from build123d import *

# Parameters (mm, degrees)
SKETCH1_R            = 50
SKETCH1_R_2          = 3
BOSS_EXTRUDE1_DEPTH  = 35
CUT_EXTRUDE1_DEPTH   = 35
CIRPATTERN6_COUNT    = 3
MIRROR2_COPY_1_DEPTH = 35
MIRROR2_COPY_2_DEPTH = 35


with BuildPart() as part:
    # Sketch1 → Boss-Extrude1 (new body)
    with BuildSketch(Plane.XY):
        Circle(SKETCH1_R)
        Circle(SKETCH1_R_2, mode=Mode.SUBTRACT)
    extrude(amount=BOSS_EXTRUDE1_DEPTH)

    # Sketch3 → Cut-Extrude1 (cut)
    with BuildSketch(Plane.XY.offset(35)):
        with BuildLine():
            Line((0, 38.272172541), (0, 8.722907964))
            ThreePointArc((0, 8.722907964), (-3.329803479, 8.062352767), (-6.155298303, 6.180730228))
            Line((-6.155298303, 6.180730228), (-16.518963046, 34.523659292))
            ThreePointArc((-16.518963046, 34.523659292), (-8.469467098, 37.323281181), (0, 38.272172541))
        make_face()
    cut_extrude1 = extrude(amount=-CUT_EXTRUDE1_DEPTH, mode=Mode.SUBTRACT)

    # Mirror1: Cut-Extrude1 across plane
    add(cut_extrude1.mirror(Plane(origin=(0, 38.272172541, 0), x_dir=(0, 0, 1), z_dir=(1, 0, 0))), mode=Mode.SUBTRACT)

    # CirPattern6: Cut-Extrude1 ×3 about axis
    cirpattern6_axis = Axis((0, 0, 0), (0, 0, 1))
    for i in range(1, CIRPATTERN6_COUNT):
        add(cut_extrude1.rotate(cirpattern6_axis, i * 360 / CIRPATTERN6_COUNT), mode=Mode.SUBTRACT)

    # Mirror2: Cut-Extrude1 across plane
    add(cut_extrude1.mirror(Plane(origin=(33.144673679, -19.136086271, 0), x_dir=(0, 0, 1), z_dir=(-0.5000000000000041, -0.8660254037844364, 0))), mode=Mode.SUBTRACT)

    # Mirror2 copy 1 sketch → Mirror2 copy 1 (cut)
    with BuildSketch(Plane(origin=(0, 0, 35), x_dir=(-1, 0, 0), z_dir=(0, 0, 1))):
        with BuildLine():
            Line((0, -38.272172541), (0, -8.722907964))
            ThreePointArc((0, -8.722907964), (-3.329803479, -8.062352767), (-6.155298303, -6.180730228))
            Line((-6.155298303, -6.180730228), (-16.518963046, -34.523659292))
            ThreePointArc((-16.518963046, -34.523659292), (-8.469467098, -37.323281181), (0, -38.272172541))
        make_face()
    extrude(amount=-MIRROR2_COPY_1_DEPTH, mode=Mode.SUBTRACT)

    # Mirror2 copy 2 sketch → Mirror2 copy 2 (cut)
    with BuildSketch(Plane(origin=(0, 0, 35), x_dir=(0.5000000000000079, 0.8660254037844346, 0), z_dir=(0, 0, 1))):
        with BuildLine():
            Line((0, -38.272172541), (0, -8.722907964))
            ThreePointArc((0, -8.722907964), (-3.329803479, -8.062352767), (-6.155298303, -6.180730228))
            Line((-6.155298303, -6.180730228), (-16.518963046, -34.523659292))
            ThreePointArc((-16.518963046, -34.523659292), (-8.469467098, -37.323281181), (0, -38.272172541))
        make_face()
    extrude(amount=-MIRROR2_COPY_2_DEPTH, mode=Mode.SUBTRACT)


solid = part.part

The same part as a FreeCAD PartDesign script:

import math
import FreeCAD as App
import Part
import Sketcher
from FreeCAD import Vector
Q = App.Units.Quantity

doc = App.newDocument("Part")
params = doc.addObject("Spreadsheet::Sheet", "Params")
for row, (alias, value) in enumerate([
    ("sketch1_diameter", "100 mm"),
    ("sketch1_diameter2", "6 mm"),
    ("pad1_length", "35 mm"),
    ("pocket1_length", "35 mm"),
    ("pocket2_length", "35 mm"),
    ("pocket3_length", "35 mm"),
], start=1):
    params.set(f"A{row}", alias)
    params.set(f"B{row}", "=" + value)
    params.setAlias(f"B{row}", alias)

body = doc.addObject("PartDesign::Body", "Body")

sketch1 = body.newObject("Sketcher::SketchObject", "Sketch")
sketch1.AttachmentSupport = (doc.getObject("XY_Plane"), [""])
sketch1.MapMode = "FlatFace"
sketch1.addGeometry(Part.Circle(Vector(0, 0, 0), Vector(0, 0, 1), 50), False)
sketch1.addGeometry(Part.Circle(Vector(0, 0, 0), Vector(0, 0, 1), 3), False)
sketch1.addConstraint(Sketcher.Constraint("Coincident", 0, 3, -1, 1))
sketch1.addConstraint(Sketcher.Constraint("Coincident", 1, 3, -1, 1))
sketch1.addConstraint(Sketcher.Constraint("Diameter", 0, Q("100 mm")))
sketch1.addConstraint(Sketcher.Constraint("Diameter", 1, Q("6 mm")))
sketch1.setExpression("Constraints[2]", "Params.sketch1_diameter")
sketch1.setExpression("Constraints[3]", "Params.sketch1_diameter2")
pad1 = body.newObject("PartDesign::Pad", "Pad")
pad1.Profile = sketch1
pad1.setExpression("Length", "Params.pad1_length")

sketch2 = body.newObject("Sketcher::SketchObject", "Sketch001")
sketch2.AttachmentSupport = (doc.getObject("XY_Plane"), [""])
sketch2.MapMode = "FlatFace"
sketch2.AttachmentOffset = App.Placement(Vector(0, 0, 35), App.Rotation())
sketch2.addGeometry(Part.LineSegment(Vector(0, 9, 0), Vector(0, 38, 0)), False)
sketch2.addGeometry(Part.ArcOfCircle(Part.Circle(Vector(0, 0, 0), Vector(0, 0, 1), 38), math.radians(90), math.radians(116)), False)
sketch2.addGeometry(Part.LineSegment(Vector(-17, 35, 0), Vector(-6, 6, 0)), False)
sketch2.addGeometry(Part.ArcOfCircle(Part.Circle(Vector(0, 0, 0), Vector(0, 0, 1), 9), math.radians(90), math.radians(135)), False)
sketch2.addConstraint(Sketcher.Constraint("Coincident", 0, 2, 1, 1))
sketch2.addConstraint(Sketcher.Constraint("Coincident", 1, 2, 2, 1))
sketch2.addConstraint(Sketcher.Constraint("Coincident", 2, 2, 3, 2))
sketch2.addConstraint(Sketcher.Constraint("Coincident", 3, 1, 0, 1))
sketch2.addConstraint(Sketcher.Constraint("Vertical", 0))
sketch2.addConstraint(Sketcher.Constraint("Coincident", 1, 3, -1, 1))
sketch2.addConstraint(Sketcher.Constraint("Coincident", 3, 3, -1, 1))
sketch2.addConstraint(Sketcher.Constraint("PointOnObject", 0, 2, -2))
sketch2.addConstraint(Sketcher.Constraint("Radius", 1, Q("38.272173 mm")))
sketch2.addConstraint(Sketcher.Constraint("Radius", 3, Q("8.722908 mm")))
sketch2.addConstraint(Sketcher.Constraint("DistanceX", 2, 2, -1, 1, Q("6.155298 mm")))
sketch2.addConstraint(Sketcher.Constraint("DistanceY", -1, 1, 1, 2, Q("34.523659 mm")))
pocket1 = body.newObject("PartDesign::Pocket", "Pocket")
pocket1.Profile = sketch2
pocket1.setExpression("Length", "Params.pocket1_length")
doc.recompute()

mirrored = body.newObject("PartDesign::Mirrored", "Mirrored")
mirrored.Originals = [pocket1]
mirrored.MirrorPlane = (doc.getObject("YZ_Plane"), [""])
body.Tip = mirrored
doc.recompute()

polarpattern = body.newObject("PartDesign::PolarPattern", "PolarPattern")
polarpattern.Originals = [pocket1]
polarpattern.Axis = (doc.getObject("Z_Axis"), [""])
polarpattern.Angle = 360
polarpattern.Occurrences = 3
body.Tip = polarpattern
doc.recompute()

datumplane = body.newObject("PartDesign::Plane", "DatumPlane")
datumplane.Placement = App.Placement(Vector(0, 0, 0), App.Rotation(Vector(-0.866025404, 0.5, 0), Vector(0, 0, -1), Vector(-0.5, -0.866025404, 0), "ZXY"))
mirrored2 = body.newObject("PartDesign::Mirrored", "Mirrored001")
mirrored2.Originals = [pocket1]
mirrored2.MirrorPlane = (datumplane, [""])
body.Tip = mirrored2

sketch3 = body.newObject("Sketcher::SketchObject", "Sketch002")
sketch3.AttachmentSupport = (doc.getObject("XY_Plane"), [""])
sketch3.MapMode = "FlatFace"
sketch3.AttachmentOffset = App.Placement(Vector(0, 0, 35), App.Rotation())
sketch3.addGeometry(Part.LineSegment(Vector(0, 38, 0), Vector(0, 9, 0)), False)
sketch3.addGeometry(Part.ArcOfCircle(Part.Circle(Vector(0, 0, 0), Vector(0, 0, 1), 9), math.radians(45), math.radians(90)), False)
sketch3.addGeometry(Part.LineSegment(Vector(6, 6, 0), Vector(17, 35, 0)), False)
sketch3.addGeometry(Part.ArcOfCircle(Part.Circle(Vector(0, 0, 0), Vector(0, 0, 1), 38), math.radians(64), math.radians(90)), False)
sketch3.addConstraint(Sketcher.Constraint("Coincident", 0, 2, 1, 2))
sketch3.addConstraint(Sketcher.Constraint("Coincident", 1, 1, 2, 1))
sketch3.addConstraint(Sketcher.Constraint("Coincident", 2, 2, 3, 1))
sketch3.addConstraint(Sketcher.Constraint("Coincident", 3, 2, 0, 1))
sketch3.addConstraint(Sketcher.Constraint("Vertical", 0))
sketch3.addConstraint(Sketcher.Constraint("Coincident", 1, 3, -1, 1))
sketch3.addConstraint(Sketcher.Constraint("Coincident", 3, 3, -1, 1))
sketch3.addConstraint(Sketcher.Constraint("PointOnObject", 0, 2, -2))
sketch3.addConstraint(Sketcher.Constraint("Radius", 1, Q("8.722908 mm")))
sketch3.addConstraint(Sketcher.Constraint("Radius", 3, Q("38.272173 mm")))
sketch3.addConstraint(Sketcher.Constraint("DistanceX", -1, 1, 1, 1, Q("6.155298 mm")))
sketch3.addConstraint(Sketcher.Constraint("DistanceY", -1, 1, 2, 2, Q("34.523659 mm")))
pocket2 = body.newObject("PartDesign::Pocket", "Pocket001")
pocket2.Profile = sketch3
pocket2.setExpression("Length", "Params.pocket2_length")

sketch4 = body.newObject("Sketcher::SketchObject", "Sketch003")
sketch4.AttachmentSupport = (doc.getObject("XY_Plane"), [""])
sketch4.MapMode = "FlatFace"
sketch4.AttachmentOffset = App.Placement(Vector(0, 0, 35), App.Rotation())
sketch4.addGeometry(Part.LineSegment(Vector(33, -19, 0), Vector(8, -4, 0)), False)
sketch4.addGeometry(Part.ArcOfCircle(Part.Circle(Vector(0, 0, 0), Vector(0, 0, 1), 9), math.radians(-75), math.radians(-30)), False)
sketch4.addGeometry(Part.LineSegment(Vector(2, -8, 0), Vector(22, -32, 0)), False)
sketch4.addGeometry(Part.ArcOfCircle(Part.Circle(Vector(0, 0, 0), Vector(0, 0, 1), 38), math.radians(-56), math.radians(-30)), False)
sketch4.addConstraint(Sketcher.Constraint("Coincident", 0, 2, 1, 2))
sketch4.addConstraint(Sketcher.Constraint("Coincident", 1, 1, 2, 1))
sketch4.addConstraint(Sketcher.Constraint("Coincident", 2, 2, 3, 1))
sketch4.addConstraint(Sketcher.Constraint("Coincident", 3, 2, 0, 1))
sketch4.addConstraint(Sketcher.Constraint("Coincident", 1, 3, -1, 1))
sketch4.addConstraint(Sketcher.Constraint("Coincident", 3, 3, -1, 1))
sketch4.addConstraint(Sketcher.Constraint("Angle", 0, Q("150 deg")))
sketch4.addConstraint(Sketcher.Constraint("Radius", 1, Q("8.722908 mm")))
sketch4.addConstraint(Sketcher.Constraint("Radius", 3, Q("38.272173 mm")))
sketch4.addConstraint(Sketcher.Constraint("DistanceX", -1, 1, 0, 2, Q("7.55426 mm")))
sketch4.addConstraint(Sketcher.Constraint("DistanceX", -1, 1, 1, 1, Q("2.27502 mm")))
sketch4.addConstraint(Sketcher.Constraint("DistanceY", 2, 2, -1, 1, Q("31.567671 mm")))
pocket3 = body.newObject("PartDesign::Pocket", "Pocket002")
pocket3.Profile = sketch4
pocket3.setExpression("Length", "Params.pocket3_length")

doc.recompute()
